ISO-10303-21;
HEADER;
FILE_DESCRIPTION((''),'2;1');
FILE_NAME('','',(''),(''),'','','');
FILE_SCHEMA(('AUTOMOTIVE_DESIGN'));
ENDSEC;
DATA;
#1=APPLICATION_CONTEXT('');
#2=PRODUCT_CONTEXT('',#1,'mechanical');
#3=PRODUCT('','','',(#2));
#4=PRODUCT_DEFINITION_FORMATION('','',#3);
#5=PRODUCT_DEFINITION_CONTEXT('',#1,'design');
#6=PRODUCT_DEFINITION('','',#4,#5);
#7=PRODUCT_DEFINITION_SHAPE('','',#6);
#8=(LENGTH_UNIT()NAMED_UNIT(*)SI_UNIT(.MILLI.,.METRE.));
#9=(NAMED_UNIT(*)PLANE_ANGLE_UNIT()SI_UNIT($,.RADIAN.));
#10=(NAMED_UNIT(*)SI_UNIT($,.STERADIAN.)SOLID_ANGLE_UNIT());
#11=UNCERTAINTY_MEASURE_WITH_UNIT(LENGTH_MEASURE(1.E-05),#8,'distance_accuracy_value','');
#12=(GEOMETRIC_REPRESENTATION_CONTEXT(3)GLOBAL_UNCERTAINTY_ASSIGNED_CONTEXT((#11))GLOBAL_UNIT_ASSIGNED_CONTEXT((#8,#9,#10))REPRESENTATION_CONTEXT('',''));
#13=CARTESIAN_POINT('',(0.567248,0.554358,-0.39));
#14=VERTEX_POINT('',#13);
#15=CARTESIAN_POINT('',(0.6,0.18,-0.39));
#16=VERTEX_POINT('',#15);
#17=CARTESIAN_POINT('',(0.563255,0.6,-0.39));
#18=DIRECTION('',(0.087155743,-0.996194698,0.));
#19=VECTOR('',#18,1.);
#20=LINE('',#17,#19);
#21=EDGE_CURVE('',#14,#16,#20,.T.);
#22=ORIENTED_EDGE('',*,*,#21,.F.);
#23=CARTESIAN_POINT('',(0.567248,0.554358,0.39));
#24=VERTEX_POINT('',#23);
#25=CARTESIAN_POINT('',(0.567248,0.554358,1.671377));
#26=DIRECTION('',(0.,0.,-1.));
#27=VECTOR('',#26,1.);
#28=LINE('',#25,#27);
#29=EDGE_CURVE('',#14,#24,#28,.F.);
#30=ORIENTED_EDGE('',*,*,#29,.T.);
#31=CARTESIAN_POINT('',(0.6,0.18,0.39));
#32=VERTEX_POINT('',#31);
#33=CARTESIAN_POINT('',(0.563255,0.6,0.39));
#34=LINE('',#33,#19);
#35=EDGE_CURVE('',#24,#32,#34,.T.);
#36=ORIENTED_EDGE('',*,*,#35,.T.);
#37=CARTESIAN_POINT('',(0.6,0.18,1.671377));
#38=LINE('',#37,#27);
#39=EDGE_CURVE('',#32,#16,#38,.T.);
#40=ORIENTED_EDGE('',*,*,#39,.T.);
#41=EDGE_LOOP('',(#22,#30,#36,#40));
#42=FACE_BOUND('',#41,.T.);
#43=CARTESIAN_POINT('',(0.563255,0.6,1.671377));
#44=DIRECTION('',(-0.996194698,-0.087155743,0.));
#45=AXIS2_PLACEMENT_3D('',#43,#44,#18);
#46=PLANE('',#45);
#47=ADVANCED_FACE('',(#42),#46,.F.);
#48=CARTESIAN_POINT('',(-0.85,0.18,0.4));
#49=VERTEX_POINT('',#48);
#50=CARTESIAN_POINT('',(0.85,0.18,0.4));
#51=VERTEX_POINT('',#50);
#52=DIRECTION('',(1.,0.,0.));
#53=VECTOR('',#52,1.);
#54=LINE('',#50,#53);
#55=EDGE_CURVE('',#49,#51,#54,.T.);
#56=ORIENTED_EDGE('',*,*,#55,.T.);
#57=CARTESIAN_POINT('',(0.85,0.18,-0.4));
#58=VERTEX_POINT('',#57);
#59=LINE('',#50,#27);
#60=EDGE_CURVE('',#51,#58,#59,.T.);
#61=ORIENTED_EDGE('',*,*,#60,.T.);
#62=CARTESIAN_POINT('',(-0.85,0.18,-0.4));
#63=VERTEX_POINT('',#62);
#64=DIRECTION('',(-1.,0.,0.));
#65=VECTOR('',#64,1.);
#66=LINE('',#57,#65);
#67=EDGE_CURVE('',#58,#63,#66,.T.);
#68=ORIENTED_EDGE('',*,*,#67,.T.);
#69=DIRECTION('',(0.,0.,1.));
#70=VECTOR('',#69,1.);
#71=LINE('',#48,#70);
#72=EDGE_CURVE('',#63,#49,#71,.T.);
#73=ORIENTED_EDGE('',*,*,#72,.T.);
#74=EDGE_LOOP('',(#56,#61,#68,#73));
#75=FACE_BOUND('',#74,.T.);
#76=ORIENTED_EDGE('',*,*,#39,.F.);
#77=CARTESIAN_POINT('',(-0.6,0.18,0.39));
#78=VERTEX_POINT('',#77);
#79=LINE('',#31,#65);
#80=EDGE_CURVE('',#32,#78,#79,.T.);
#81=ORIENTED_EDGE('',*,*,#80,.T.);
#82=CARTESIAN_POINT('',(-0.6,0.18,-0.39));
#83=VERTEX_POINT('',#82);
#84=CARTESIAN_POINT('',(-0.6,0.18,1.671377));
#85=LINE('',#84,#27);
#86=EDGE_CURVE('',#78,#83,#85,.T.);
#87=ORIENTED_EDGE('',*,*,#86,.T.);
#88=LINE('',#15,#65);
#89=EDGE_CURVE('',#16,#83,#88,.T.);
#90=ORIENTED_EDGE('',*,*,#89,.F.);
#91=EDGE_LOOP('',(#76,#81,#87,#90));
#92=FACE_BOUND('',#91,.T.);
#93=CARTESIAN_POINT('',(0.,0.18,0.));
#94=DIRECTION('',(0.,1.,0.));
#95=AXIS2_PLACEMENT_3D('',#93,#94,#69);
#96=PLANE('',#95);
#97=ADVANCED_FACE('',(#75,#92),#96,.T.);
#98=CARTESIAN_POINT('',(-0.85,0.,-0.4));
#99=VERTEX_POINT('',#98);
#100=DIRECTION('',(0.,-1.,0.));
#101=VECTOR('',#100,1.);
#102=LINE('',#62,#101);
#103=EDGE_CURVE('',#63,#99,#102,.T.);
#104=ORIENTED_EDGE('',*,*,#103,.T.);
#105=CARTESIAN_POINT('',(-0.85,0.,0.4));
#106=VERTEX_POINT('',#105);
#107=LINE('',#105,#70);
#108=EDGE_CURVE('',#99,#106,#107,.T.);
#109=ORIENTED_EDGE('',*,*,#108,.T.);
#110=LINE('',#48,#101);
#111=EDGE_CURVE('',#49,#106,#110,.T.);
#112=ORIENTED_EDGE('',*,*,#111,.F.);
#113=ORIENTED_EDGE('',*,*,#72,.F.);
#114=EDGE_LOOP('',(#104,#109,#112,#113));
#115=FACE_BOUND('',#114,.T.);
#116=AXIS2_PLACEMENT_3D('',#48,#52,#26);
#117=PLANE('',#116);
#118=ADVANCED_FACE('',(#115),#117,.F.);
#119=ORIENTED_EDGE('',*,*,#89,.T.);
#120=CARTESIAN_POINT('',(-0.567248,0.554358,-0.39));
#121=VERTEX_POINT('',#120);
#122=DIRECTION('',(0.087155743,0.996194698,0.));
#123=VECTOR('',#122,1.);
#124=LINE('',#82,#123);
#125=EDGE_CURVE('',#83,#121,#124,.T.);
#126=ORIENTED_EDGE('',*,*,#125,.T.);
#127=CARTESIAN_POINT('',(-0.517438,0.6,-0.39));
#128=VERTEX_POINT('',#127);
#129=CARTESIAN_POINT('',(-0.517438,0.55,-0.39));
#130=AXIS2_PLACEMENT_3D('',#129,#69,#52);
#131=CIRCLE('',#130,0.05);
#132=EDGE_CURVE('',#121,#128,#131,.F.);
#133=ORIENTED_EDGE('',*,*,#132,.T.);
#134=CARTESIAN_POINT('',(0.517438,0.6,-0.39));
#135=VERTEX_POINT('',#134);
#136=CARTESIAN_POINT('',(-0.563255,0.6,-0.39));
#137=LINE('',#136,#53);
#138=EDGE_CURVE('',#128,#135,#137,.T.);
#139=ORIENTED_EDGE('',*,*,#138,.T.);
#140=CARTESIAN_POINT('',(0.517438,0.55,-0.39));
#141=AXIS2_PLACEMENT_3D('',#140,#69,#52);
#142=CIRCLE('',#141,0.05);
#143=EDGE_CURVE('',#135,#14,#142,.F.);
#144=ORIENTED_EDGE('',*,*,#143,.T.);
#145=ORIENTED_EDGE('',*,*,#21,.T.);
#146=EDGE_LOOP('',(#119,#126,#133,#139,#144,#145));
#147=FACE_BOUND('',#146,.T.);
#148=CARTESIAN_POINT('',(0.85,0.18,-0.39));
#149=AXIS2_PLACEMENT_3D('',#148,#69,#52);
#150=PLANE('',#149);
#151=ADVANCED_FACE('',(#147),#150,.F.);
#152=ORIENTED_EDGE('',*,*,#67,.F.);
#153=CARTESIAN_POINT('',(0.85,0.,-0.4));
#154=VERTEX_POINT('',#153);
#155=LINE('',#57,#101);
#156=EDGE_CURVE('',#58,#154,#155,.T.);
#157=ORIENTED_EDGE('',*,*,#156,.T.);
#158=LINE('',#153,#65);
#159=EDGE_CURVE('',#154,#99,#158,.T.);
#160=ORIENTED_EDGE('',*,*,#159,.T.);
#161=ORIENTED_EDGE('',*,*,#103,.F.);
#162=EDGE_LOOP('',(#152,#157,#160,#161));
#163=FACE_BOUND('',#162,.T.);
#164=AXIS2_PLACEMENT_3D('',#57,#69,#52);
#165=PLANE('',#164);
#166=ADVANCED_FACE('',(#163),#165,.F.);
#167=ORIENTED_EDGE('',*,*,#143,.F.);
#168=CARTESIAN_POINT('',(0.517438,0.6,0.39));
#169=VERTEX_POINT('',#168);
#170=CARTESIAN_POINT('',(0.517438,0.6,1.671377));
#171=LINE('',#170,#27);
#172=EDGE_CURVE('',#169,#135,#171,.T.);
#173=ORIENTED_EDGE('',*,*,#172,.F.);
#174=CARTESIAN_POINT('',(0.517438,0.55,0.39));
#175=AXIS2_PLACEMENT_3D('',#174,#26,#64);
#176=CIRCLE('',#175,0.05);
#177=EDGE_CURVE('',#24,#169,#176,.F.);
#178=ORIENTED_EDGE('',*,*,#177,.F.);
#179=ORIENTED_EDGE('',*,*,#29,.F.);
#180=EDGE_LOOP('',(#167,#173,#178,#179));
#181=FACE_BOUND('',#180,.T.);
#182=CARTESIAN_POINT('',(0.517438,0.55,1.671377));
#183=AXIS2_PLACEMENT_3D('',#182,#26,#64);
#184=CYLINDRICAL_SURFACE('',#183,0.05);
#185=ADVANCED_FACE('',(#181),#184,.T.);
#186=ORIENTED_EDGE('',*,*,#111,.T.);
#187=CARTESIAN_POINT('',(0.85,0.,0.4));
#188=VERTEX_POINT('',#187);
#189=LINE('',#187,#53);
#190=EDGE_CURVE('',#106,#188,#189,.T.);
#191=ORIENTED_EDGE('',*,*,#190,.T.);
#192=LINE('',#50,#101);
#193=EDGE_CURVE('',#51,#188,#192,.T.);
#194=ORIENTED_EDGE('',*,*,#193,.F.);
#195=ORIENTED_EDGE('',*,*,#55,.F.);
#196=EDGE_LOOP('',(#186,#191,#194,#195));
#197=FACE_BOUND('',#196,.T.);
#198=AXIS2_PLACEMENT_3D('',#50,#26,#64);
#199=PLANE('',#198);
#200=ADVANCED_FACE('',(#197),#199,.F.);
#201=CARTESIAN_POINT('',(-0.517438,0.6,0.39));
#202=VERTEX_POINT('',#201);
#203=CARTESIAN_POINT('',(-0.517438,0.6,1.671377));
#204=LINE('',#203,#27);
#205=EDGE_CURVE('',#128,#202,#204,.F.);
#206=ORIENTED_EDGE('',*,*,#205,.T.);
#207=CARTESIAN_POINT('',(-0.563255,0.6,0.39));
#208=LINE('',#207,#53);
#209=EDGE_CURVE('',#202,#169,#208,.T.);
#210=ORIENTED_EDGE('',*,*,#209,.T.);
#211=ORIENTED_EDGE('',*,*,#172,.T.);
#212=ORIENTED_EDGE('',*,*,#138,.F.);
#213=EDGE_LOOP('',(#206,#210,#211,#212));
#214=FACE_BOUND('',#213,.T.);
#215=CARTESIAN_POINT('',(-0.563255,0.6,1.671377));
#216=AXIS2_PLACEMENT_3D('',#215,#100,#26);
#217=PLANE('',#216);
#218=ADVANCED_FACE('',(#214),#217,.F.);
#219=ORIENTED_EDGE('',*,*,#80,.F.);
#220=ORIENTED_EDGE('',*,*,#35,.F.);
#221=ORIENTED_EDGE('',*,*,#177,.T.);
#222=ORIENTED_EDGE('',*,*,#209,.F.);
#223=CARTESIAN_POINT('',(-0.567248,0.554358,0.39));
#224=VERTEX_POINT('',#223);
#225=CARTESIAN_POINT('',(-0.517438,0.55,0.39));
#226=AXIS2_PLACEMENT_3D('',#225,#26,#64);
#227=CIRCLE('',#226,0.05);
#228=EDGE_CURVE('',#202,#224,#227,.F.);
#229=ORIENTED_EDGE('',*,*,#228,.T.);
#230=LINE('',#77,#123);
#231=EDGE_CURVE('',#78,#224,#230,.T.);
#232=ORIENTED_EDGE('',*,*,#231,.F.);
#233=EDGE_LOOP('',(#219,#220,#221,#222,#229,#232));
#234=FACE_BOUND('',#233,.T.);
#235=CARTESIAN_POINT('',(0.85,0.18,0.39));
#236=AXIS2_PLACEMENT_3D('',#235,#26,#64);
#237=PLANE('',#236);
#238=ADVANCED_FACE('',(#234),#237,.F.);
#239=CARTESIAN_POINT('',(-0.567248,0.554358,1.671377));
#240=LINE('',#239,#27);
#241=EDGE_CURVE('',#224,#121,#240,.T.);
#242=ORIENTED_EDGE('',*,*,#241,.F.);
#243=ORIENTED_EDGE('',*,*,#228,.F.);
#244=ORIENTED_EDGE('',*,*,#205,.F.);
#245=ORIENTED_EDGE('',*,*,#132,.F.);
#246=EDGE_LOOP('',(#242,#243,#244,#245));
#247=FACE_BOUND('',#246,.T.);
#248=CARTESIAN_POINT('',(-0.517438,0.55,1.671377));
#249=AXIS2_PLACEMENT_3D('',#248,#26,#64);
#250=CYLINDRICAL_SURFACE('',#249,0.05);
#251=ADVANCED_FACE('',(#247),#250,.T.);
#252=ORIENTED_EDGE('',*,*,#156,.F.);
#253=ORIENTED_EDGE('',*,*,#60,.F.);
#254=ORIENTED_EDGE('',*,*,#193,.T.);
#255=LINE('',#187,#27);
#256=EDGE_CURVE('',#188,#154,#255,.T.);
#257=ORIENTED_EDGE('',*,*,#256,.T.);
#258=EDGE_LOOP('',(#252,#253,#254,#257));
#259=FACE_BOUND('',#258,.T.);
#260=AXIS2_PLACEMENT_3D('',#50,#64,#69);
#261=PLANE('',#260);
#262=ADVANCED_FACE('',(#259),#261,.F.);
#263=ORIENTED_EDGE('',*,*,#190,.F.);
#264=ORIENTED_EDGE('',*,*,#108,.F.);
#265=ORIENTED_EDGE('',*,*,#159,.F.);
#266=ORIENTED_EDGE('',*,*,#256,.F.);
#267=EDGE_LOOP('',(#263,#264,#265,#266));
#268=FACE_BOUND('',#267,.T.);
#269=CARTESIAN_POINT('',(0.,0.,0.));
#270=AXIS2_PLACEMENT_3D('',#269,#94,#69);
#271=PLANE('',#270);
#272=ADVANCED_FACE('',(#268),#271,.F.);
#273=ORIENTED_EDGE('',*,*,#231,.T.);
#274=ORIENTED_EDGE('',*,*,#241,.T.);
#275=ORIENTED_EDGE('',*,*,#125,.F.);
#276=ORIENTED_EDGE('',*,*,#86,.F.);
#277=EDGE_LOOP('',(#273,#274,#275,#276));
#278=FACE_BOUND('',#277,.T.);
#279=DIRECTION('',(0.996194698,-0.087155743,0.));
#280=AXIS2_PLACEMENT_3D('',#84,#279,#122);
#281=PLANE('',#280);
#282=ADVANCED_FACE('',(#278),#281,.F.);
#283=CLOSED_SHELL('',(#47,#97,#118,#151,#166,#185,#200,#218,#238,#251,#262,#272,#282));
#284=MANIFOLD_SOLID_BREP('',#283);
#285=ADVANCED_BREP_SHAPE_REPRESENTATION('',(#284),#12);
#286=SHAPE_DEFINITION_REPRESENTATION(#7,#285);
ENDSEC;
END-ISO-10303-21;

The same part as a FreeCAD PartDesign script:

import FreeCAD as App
import Part
import Sketcher
Q = App.Units.Quantity


def edges_at(feature, points):
    """Names of the edges that pass closest to the given points."""
    edges = feature.Shape.Edges
    near = lambda p: min(range(len(edges)), key=lambda i: edges[i].distToShape(Part.Vertex(*p))[0])
    return sorted({f"Edge{near(p) + 1}" for p in points})

doc = App.newDocument("Part")
body = doc.addObject("PartDesign::Body", "Body")

# Sketch on XZ plane
sketch1 = body.newObject("Sketcher::SketchObject", "Sketch")
sketch1.AttachmentSupport = (doc.getObject("XZ_Plane"), [""])
sketch1.MapMode = "FlatFace"
sketch1.addGeometry([
    Part.LineSegment(App.Vector(-0.85, -0.4, 0), App.Vector(-0.85, 0.4, 0)),
    Part.LineSegment(App.Vector(-0.85, 0.4, 0), App.Vector(0.85, 0.4, 0)),
    Part.LineSegment(App.Vector(0.85, 0.4, 0), App.Vector(0.85, -0.4, 0)),
    Part.LineSegment(App.Vector(0.85, -0.4, 0), App.Vector(-0.85, -0.4, 0)),
], False)
sketch1.addConstraint([
    Sketcher.Constraint("Coincident", 0, 2, 1, 1),
    Sketcher.Constraint("Coincident", 1, 2, 2, 1),
    Sketcher.Constraint("Coincident", 2, 2, 3, 1),
    Sketcher.Constraint("Coincident", 3, 2, 0, 1),
    Sketcher.Constraint("Vertical", 0),
    Sketcher.Constraint("Horizontal", 1),
    Sketcher.Constraint("Vertical", 2),
    Sketcher.Constraint("Horizontal", 3),
    Sketcher.Constraint("Symmetric", 0, 2, 2, 2, -1, 1),
    Sketcher.Constraint("DistanceX", 1, 1, 1, 2, 1.7),
    Sketcher.Constraint("DistanceY", 0, 1, 0, 2, 0.8),
])
pad1 = body.newObject("PartDesign::Pad", "Pad")
pad1.Profile = sketch1
pad1.Length = 0.18
pad1.Reversed = True

# Sketch on XY plane
sketch2 = body.newObject("Sketcher::SketchObject", "Sketch001")
sketch2.AttachmentSupport = (doc.getObject("XY_Plane"), [""])
sketch2.MapMode = "FlatFace"
sketch2.addGeometry([
    Part.LineSegment(App.Vector(-0.563255, 0.6, 0), App.Vector(-0.6, 0.18, 0)),
    Part.LineSegment(App.Vector(-0.6, 0.18, 0), App.Vector(0.6, 0.18, 0)),
    Part.LineSegment(App.Vector(0.6, 0.18, 0), App.Vector(0.563255, 0.6, 0)),
    Part.LineSegment(App.Vector(0.563255, 0.6, 0), App.Vector(-0.563255, 0.6, 0)),
], False)
sketch2.addConstraint([
    Sketcher.Constraint("Coincident", 0, 2, 1, 1),
    Sketcher.Constraint("Coincident", 1, 2, 2, 1),
    Sketcher.Constraint("Coincident", 2, 2, 3, 1),
    Sketcher.Constraint("Coincident", 3, 2, 0, 1),
    Sketcher.Constraint("Horizontal", 1),
    Sketcher.Constraint("Horizontal", 3),
    Sketcher.Constraint("Equal", 0, 2),
    Sketcher.Constraint("Angle", 0, Q("-95 deg")),
    Sketcher.Constraint("DistanceX", 1, 1, 1, 2, 1.2),
    Sketcher.Constraint("DistanceX", 0, 2, -1, 1, 0.6),
    Sketcher.Constraint("DistanceY", -1, 1, 2, 2, 0.6),
    Sketcher.Constraint("DistanceY", -1, 1, 0, 2, 0.18),
])
pad2 = body.newObject("PartDesign::Pad", "Pad001")
pad2.Profile = sketch2
pad2.Type = "TwoLengths"
pad2.Length = 0.39
pad2.Length2 = 0.39
doc.recompute()

fillet = body.newObject("PartDesign::Fillet", "Fillet")
fillet.Base = (pad2, edges_at(pad2, [(-0.563, 0.6, 0), (0.563, 0.6, 0)]))
fillet.Radius = 0.05

doc.recompute()
